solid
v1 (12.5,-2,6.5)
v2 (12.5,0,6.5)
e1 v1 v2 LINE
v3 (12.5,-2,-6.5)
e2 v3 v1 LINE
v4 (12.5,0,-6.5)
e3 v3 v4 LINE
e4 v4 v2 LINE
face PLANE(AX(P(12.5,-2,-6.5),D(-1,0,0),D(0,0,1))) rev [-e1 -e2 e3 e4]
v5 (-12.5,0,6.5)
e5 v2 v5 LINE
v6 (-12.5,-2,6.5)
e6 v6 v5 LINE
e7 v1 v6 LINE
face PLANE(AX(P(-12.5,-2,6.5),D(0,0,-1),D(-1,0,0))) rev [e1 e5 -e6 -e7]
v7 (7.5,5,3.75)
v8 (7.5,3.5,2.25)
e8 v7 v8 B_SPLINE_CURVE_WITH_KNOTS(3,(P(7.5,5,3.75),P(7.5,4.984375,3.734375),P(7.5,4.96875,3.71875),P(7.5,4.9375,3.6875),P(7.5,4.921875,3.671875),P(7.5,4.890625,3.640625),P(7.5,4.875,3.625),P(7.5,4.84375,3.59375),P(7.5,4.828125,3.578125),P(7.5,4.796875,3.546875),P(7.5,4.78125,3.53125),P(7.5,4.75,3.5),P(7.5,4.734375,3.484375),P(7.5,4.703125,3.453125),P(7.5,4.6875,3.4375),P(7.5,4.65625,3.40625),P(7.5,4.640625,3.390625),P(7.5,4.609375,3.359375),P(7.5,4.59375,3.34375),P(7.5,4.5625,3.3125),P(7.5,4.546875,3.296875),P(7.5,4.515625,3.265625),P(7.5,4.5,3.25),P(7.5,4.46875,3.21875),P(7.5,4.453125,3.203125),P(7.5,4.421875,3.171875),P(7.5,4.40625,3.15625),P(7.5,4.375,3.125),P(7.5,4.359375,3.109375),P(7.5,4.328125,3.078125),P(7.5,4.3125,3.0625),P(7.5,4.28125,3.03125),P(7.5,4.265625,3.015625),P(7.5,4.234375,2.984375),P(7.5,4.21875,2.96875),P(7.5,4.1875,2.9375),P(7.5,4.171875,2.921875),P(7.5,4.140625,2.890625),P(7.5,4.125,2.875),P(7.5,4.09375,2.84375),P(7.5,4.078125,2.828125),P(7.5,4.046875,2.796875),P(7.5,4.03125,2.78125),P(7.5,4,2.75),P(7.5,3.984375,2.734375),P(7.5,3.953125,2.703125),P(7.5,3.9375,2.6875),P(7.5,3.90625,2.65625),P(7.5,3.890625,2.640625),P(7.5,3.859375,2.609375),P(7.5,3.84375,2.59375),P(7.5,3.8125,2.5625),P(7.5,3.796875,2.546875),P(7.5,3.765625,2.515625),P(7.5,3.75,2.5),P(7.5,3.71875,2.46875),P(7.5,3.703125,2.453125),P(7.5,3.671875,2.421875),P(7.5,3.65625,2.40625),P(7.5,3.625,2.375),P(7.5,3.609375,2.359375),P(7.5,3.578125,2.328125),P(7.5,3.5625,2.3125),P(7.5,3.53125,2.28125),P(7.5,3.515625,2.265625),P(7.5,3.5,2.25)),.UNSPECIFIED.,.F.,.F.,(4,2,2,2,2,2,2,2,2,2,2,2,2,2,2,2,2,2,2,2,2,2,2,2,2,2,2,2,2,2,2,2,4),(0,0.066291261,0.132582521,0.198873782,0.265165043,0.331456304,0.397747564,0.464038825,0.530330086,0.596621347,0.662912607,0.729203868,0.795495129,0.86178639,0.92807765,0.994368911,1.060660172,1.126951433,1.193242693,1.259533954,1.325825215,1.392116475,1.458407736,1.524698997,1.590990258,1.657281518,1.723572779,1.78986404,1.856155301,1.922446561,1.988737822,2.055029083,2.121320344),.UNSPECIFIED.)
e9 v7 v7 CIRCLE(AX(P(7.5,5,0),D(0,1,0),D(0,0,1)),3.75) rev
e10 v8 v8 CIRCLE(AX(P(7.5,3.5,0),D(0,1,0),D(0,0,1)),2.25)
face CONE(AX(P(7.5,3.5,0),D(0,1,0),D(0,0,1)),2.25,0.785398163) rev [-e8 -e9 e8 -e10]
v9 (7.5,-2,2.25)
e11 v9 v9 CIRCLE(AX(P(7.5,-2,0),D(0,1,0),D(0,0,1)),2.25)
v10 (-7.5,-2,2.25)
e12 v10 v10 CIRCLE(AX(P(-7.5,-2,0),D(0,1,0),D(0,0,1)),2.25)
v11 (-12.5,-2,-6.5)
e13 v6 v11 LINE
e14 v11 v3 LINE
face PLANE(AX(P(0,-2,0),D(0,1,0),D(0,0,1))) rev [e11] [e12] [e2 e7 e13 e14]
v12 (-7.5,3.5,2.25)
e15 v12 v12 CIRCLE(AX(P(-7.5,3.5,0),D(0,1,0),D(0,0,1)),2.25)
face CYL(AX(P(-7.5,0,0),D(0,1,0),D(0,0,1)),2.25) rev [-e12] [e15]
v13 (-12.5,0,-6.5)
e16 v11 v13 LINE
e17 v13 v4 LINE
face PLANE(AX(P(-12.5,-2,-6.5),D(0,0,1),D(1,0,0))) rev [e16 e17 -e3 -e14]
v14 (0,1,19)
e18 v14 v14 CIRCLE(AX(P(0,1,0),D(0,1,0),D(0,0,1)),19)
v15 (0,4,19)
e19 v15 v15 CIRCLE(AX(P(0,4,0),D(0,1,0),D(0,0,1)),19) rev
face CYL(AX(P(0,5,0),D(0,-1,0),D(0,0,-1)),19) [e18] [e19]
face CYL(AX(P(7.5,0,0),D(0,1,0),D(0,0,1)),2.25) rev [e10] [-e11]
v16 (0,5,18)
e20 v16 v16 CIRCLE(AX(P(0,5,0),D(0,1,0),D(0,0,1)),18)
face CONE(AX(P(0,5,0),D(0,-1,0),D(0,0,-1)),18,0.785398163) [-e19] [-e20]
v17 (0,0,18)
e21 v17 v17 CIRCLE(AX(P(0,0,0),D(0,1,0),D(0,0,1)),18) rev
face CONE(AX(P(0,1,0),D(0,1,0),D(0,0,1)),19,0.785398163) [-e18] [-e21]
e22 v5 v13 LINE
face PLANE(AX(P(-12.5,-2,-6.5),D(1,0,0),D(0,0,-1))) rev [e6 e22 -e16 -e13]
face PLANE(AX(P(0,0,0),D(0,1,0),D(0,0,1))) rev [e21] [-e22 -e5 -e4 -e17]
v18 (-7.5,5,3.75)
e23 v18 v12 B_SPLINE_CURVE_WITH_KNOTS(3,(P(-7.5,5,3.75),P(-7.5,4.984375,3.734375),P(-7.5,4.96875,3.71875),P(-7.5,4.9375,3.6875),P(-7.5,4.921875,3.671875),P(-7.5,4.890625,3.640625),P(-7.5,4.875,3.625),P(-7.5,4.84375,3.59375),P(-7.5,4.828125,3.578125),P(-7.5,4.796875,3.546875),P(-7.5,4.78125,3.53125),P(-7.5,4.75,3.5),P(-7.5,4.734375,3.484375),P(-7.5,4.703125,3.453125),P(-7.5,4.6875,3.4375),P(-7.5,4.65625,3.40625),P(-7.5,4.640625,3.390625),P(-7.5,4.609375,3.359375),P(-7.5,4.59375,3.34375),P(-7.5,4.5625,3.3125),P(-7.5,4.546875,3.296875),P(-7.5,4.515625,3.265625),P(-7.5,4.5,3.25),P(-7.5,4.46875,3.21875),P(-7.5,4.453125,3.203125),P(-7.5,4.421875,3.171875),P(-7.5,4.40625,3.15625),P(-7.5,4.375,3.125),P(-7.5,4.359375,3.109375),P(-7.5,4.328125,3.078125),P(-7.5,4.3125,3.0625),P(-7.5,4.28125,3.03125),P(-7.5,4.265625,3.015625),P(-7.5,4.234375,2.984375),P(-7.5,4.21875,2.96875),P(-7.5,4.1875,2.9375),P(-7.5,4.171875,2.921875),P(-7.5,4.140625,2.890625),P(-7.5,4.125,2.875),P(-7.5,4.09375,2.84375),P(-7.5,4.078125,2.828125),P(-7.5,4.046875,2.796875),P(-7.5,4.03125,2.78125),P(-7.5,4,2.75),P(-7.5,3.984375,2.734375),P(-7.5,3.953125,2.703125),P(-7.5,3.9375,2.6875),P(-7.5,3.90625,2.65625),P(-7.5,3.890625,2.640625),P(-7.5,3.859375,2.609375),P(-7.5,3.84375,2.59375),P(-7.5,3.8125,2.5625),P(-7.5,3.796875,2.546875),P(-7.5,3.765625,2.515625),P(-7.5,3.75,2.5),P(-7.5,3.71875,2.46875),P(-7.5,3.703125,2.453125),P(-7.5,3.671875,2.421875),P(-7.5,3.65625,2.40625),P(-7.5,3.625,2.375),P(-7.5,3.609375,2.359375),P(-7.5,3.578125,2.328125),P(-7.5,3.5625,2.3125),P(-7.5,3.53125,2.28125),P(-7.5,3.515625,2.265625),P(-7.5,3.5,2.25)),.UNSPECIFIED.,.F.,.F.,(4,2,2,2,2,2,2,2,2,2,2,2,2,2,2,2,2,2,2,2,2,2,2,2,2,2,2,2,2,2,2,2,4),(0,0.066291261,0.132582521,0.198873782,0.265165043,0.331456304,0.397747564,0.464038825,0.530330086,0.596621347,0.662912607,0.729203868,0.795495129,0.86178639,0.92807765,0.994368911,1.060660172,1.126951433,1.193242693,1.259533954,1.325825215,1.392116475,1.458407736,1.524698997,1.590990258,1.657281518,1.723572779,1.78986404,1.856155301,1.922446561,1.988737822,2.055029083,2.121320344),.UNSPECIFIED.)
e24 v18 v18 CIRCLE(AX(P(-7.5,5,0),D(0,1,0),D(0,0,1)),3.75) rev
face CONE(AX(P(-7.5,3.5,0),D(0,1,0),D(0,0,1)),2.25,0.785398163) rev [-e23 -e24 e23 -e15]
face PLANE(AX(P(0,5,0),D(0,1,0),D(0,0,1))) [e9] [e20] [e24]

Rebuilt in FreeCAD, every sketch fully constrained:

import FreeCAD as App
import Part
import Sketcher

V = App.Vector


def edges_at(feature, points):
    """Names of the edges that pass closest to the given points."""
    edges = feature.Shape.Edges
    near = lambda p: min(range(len(edges)), key=lambda i: edges[i].distToShape(Part.Vertex(*p))[0])
    return sorted({f"Edge{near(p) + 1}" for p in points})

doc = App.newDocument("Part")
body = doc.addObject("PartDesign::Body", "Body")

sketch1 = body.newObject("Sketcher::SketchObject", "Sketch")
sketch1.AttachmentSupport = (doc.getObject("XZ_Plane"), [""])
sketch1.MapMode = "FlatFace"
sketch1.addGeometry(Part.Circle(V(0, 0, 0), V(0, 0, 1), 19), False)
sketch1.addConstraint([
    Sketcher.Constraint("Coincident", 0, 3, -1, 1),
    Sketcher.Constraint("Diameter", 0, 38.0),
])
pad1 = body.newObject("PartDesign::Pad", "Pad")
pad1.Profile = sketch1
pad1.Length = 5
pad1.Reversed = True
doc.recompute()

chamfer = body.newObject("PartDesign::Chamfer", "Chamfer")
chamfer.Base = (pad1, edges_at(pad1, [(0, 0, -19), (0, 5, -19)]))
chamfer.Size = 1

sketch2 = body.newObject("Sketcher::SketchObject", "Sketch001")
sketch2.AttachmentSupport = (doc.getObject("XZ_Plane"), [""])
sketch2.MapMode = "FlatFace"
sketch2.AttachmentOffset = App.Placement(V(0, 0, -5), App.Rotation())
sketch2.addGeometry([
    Part.Circle(V(-7.5, 0, 0), V(0, 0, 1), 2.25),
    Part.Circle(V(7.5, 0, 0), V(0, 0, 1), 2.25),
], False)
sketch2.addConstraint([
    Sketcher.Constraint("Equal", 0, 1),
    Sketcher.Constraint("Symmetric", 0, 3, 1, 3, -1, 1),
    Sketcher.Constraint("PointOnObject", 0, 3, -1),
    Sketcher.Constraint("Diameter", 0, 4.5),
    Sketcher.Constraint("DistanceX", 0, 3, 1, 3, 15.0),
])
pocket1 = body.newObject("PartDesign::Pocket", "Pocket")
pocket1.Profile = sketch2
pocket1.Type = "ThroughAll"
pocket1.Reversed = True
doc.recompute()

chamfer2 = body.newObject("PartDesign::Chamfer", "Chamfer001")
chamfer2.Base = (pocket1, edges_at(pocket1, [(-7.5, 5, -2.25), (7.5, 5, 2.25)]))
chamfer2.Size = 1.5

sketch3 = body.newObject("Sketcher::SketchObject", "Sketch002")
sketch3.AttachmentSupport = (doc.getObject("XZ_Plane"), [""])
sketch3.MapMode = "FlatFace"
sketch3.addGeometry([
    Part.LineSegment(V(-12.5, 6.5, 0), V(-12.5, -6.5, 0)),
    Part.LineSegment(V(-12.5, -6.5, 0), V(12.5, -6.5, 0)),
    Part.LineSegment(V(12.5, -6.5, 0), V(12.5, 6.5, 0)),
    Part.LineSegment(V(12.5, 6.5, 0), V(-12.5, 6.5, 0)),
], False)
sketch3.addConstraint([
    Sketcher.Constraint("Coincident", 0, 2, 1, 1),
    Sketcher.Constraint("Coincident", 1, 2, 2, 1),
    Sketcher.Constraint("Coincident", 2, 2, 3, 1),
    Sketcher.Constraint("Coincident", 3, 2, 0, 1),
    Sketcher.Constraint("Vertical", 0),
    Sketcher.Constraint("Horizontal", 1),
    Sketcher.Constraint("Vertical", 2),
    Sketcher.Constraint("Horizontal", 3),
    Sketcher.Constraint("Symmetric", 0, 2, 2, 2, -1, 1),
    Sketcher.Constraint("DistanceX", 1, 1, 1, 2, 25.0),
    Sketcher.Constraint("DistanceY", 0, 2, 0, 1, 13.0),
])
pad2 = body.newObject("PartDesign::Pad", "Pad001")
pad2.Profile = sketch3
pad2.Length = 2

sketch4 = body.newObject("Sketcher::SketchObject", "Sketch003")
sketch4.AttachmentSupport = (doc.getObject("XZ_Plane"), [""])
sketch4.MapMode = "FlatFace"
sketch4.addGeometry([
    Part.Circle(V(7.5, 0, 0), V(0, 0, 1), 2.25),
    Part.Circle(V(-7.5, 0, 0), V(0, 0, 1), 2.25),
], False)
sketch4.addConstraint([
    Sketcher.Constraint("Equal", 0, 1),
    Sketcher.Constraint("Symmetric", 0, 3, 1, 3, -1, 1),
    Sketcher.Constraint("PointOnObject", 0, 3, -1),
    Sketcher.Constraint("Diameter", 0, 4.5),
    Sketcher.Constraint("DistanceX", 1, 3, 0, 3, 15.0),
])
pocket2 = body.newObject("PartDesign::Pocket", "Pocket001")
pocket2.Profile = sketch4
pocket2.Type = "ThroughAll"
pocket2.Reversed = True

doc.recompute()
